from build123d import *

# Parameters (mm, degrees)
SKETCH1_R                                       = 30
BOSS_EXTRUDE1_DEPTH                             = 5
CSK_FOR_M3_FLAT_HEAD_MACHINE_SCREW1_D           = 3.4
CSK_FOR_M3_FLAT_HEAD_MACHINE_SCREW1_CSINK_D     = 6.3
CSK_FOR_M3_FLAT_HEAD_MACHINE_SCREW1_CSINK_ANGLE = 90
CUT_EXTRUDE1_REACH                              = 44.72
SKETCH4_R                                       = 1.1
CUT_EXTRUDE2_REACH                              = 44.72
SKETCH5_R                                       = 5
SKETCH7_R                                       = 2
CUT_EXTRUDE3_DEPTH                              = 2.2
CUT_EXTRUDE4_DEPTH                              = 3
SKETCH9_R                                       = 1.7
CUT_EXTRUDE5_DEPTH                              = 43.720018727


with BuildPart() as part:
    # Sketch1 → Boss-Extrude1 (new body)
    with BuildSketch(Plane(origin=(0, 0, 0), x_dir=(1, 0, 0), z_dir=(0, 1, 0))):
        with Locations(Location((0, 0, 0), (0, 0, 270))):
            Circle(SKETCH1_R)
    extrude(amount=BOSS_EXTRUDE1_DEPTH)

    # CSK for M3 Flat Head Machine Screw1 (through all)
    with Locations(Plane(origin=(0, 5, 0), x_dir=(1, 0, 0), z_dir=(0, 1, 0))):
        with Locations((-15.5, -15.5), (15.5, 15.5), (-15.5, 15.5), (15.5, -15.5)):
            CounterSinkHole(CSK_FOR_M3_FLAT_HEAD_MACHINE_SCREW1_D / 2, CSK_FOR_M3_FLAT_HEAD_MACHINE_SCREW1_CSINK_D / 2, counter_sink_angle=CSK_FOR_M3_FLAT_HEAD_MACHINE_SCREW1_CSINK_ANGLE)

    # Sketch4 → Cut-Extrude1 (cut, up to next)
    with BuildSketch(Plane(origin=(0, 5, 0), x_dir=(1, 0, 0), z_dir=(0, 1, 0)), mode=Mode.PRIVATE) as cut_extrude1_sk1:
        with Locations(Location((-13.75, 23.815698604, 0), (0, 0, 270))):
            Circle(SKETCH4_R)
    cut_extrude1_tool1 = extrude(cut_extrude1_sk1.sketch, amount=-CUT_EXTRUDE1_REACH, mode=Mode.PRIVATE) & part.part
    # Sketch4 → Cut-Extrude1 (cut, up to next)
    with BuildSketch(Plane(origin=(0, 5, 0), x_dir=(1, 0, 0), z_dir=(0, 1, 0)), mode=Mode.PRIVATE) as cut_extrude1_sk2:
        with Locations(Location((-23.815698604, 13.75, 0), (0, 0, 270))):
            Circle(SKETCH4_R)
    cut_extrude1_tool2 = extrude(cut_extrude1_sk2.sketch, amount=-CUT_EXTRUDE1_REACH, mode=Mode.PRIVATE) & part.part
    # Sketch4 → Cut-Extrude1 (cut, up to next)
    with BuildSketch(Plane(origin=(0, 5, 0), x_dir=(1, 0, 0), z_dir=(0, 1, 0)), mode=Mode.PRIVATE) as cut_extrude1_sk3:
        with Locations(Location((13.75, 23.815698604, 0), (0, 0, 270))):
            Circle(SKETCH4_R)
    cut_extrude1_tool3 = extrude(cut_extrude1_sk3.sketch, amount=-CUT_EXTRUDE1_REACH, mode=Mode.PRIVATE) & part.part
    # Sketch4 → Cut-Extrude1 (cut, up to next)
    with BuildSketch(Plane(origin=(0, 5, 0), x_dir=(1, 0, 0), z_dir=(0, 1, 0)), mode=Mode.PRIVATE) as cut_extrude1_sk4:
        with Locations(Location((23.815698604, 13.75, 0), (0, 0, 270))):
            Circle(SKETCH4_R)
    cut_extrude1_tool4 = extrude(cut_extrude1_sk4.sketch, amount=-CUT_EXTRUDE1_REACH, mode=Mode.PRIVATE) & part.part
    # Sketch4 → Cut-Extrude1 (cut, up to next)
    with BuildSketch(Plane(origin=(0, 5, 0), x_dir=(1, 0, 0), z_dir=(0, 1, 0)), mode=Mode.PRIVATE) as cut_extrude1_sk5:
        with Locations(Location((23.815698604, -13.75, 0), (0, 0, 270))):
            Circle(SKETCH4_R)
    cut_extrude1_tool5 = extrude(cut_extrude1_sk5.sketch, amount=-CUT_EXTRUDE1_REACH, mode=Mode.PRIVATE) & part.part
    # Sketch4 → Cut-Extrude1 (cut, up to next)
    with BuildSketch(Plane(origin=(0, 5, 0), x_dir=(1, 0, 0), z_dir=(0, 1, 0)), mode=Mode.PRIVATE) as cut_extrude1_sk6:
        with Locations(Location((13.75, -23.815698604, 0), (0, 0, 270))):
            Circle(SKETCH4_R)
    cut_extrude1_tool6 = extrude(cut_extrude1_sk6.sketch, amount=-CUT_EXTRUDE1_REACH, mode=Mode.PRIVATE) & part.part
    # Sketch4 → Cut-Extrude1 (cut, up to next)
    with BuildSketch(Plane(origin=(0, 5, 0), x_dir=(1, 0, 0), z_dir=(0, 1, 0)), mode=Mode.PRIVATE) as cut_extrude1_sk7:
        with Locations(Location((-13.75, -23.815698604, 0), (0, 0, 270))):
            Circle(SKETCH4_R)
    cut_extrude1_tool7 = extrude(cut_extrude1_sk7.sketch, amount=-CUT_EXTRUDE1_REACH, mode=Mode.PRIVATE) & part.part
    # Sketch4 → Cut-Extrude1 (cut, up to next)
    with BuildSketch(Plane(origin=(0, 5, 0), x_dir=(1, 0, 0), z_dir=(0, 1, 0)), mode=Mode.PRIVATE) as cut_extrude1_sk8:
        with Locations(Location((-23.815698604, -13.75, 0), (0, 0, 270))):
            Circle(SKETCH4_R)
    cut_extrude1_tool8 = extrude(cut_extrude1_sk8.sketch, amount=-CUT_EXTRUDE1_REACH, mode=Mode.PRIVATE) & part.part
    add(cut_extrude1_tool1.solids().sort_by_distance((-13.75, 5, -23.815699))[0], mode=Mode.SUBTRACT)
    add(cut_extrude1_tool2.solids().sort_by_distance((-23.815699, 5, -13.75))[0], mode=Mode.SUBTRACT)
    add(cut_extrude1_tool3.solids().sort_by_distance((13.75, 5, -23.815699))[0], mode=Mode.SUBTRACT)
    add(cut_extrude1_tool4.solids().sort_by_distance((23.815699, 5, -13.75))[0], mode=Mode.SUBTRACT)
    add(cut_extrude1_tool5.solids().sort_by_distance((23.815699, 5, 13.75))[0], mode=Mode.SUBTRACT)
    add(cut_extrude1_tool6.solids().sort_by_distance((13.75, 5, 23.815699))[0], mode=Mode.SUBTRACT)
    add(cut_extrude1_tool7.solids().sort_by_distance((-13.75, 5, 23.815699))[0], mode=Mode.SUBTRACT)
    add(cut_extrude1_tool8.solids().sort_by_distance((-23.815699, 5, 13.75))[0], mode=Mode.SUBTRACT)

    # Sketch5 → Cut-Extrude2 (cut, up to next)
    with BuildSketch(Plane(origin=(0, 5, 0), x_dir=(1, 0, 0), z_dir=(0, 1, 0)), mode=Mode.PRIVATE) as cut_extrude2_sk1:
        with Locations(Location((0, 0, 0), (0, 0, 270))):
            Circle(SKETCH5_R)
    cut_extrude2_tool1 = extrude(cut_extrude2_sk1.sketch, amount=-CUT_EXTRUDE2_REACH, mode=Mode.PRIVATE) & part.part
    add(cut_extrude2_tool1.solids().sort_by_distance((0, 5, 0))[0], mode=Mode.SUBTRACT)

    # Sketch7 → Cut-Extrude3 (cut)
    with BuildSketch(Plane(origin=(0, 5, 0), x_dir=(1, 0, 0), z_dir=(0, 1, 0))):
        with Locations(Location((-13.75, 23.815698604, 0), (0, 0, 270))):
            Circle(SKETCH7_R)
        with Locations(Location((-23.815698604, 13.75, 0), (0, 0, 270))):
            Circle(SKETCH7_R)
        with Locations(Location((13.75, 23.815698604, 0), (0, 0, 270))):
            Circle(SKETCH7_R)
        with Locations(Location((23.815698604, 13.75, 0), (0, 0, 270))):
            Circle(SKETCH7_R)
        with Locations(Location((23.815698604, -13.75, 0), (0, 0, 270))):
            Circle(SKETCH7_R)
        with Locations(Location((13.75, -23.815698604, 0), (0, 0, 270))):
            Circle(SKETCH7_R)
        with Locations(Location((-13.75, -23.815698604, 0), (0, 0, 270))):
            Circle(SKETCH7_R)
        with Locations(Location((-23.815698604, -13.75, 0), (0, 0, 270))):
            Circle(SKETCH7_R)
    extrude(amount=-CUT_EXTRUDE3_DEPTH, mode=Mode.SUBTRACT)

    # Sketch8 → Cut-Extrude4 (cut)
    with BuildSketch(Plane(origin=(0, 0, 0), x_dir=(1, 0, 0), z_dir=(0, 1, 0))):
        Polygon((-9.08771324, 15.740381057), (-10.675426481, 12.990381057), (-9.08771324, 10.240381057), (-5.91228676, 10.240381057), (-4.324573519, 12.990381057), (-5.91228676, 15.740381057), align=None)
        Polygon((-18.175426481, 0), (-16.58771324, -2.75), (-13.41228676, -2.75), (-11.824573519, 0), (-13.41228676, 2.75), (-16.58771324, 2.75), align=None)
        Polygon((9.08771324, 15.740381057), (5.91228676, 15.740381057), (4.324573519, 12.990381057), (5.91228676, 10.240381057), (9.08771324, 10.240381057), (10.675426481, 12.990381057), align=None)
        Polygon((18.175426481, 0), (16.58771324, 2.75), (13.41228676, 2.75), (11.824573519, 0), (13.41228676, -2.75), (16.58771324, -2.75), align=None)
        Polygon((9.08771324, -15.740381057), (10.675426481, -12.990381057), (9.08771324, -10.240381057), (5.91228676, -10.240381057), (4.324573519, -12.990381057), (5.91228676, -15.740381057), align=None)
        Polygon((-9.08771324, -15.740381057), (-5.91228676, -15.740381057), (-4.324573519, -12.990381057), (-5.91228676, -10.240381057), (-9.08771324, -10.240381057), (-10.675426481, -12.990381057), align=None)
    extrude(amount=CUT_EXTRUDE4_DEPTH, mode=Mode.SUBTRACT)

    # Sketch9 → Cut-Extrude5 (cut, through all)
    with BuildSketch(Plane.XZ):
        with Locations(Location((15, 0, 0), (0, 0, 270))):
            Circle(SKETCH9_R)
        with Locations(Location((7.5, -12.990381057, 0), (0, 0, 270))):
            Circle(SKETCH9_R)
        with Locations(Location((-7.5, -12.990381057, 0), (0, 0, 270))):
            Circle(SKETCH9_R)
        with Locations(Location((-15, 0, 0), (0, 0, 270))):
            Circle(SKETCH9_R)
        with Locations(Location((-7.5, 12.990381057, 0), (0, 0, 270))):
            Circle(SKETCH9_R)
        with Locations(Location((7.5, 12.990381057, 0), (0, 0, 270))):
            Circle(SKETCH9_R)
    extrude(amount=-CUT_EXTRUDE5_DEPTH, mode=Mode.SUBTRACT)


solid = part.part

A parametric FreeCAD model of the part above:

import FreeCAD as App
import Part
import Sketcher
Q = App.Units.Quantity

doc = App.newDocument("Part")
body = doc.addObject("PartDesign::Body", "Body")

sketch1 = doc.addObject("Sketcher::SketchObject", "Sketch")
body.addObject(sketch1)
sketch1.AttachmentSupport = (doc.XZ_Plane, [""])
sketch1.MapMode = "FlatFace"
sketch1.addGeometry(Part.Circle(App.Vector(0, 0, 0), App.Vector(0, 0, 1), 30), False)
sketch1.addConstraint([
    Sketcher.Constraint("Coincident", 0, 3, -1, 1),
    Sketcher.Constraint("Diameter", 0, Q("60 mm")),
])
pad1 = doc.addObject("PartDesign::Pad", "Pad")
body.addObject(pad1)
pad1.Profile = sketch1
pad1.Length = 5
pad1.Reversed = True

sketch2 = doc.addObject("Sketcher::SketchObject", "Sketch001")
body.addObject(sketch2)
sketch2.AttachmentSupport = (doc.XZ_Plane, [""])
sketch2.MapMode = "FlatFace"
sketch2.AttachmentOffset = App.Placement(App.Vector(0, 0, -5), App.Rotation())
sketch2.addGeometry([
    Part.Circle(App.Vector(-15.5, 15.5, 0), App.Vector(0, 0, 1), 1.7),
    Part.Circle(App.Vector(15.5, -15.5, 0), App.Vector(0, 0, 1), 1.7),
    Part.Circle(App.Vector(-15.5, -15.5, 0), App.Vector(0, 0, 1), 1.7),
    Part.Circle(App.Vector(15.5, 15.5, 0), App.Vector(0, 0, 1), 1.7),
], False)
sketch2.addConstraint([
    Sketcher.Constraint("Equal", 0, 1),
    Sketcher.Constraint("Equal", 1, 2),
    Sketcher.Constraint("Equal", 2, 3),
    Sketcher.Constraint("Symmetric", 0, 3, 1, 3, -1, 1),
    Sketcher.Constraint("Symmetric", 2, 3, 3, 3, -1, 1),
    Sketcher.Constraint("Symmetric", 1, 3, 2, 3, -2),
    Sketcher.Constraint("Diameter", 0, Q("3.4 mm")),
    Sketcher.Constraint("DistanceX", 0, 3, 1, 3, Q("31 mm")),
    Sketcher.Constraint("DistanceY", 1, 3, 0, 3, Q("31 mm")),
])
doc.recompute()
hole = doc.addObject("PartDesign::Hole", "Hole")
body.addObject(hole)
hole.Profile = sketch2
hole.ThreadType = "None"
hole.Diameter = 3.4
hole.DepthType = "ThroughAll"
hole.HoleCutType = "Countersink"
hole.HoleCutDiameter = 6.3
hole.HoleCutCountersinkAngle = 90
hole.Reversed = True

sketch3 = doc.addObject("Sketcher::SketchObject", "Sketch002")
body.addObject(sketch3)
sketch3.AttachmentSupport = (doc.XZ_Plane, [""])
sketch3.MapMode = "FlatFace"
sketch3.AttachmentOffset = App.Placement(App.Vector(0, 0, -5), App.Rotation())
sketch3.addGeometry(Part.Circle(App.Vector(-13.75, -23.815699, 0), App.Vector(0, 0, 1), 1.1), False)
sketch3.addConstraint([
    Sketcher.Constraint("Diameter", 0, Q("2.2 mm")),
    Sketcher.Constraint("DistanceX", 0, 3, -1, 1, Q("13.75 mm")),
    Sketcher.Constraint("DistanceY", 0, 3, -1, 1, Q("23.815699 mm")),
])
pocket1 = doc.addObject("PartDesign::Pocket", "Pocket")
body.addObject(pocket1)
pocket1.Profile = sketch3
pocket1.Type = "UpToFirst"
pocket1.Reversed = True

sketch4 = doc.addObject("Sketcher::SketchObject", "Sketch003")
body.addObject(sketch4)
sketch4.AttachmentSupport = (doc.XZ_Plane, [""])
sketch4.MapMode = "FlatFace"
sketch4.AttachmentOffset = App.Placement(App.Vector(0, 0, -5), App.Rotation())
sketch4.addGeometry(Part.Circle(App.Vector(-23.815699, -13.75, 0), App.Vector(0, 0, 1), 1.1), False)
sketch4.addConstraint([
    Sketcher.Constraint("Diameter", 0, Q("2.2 mm")),
    Sketcher.Constraint("DistanceY", 0, 3, -1, 1, Q("13.75 mm")),
    Sketcher.Constraint("DistanceX", 0, 3, -1, 1, Q("23.815699 mm")),
])
pocket2 = doc.addObject("PartDesign::Pocket", "Pocket001")
body.addObject(pocket2)
pocket2.Profile = sketch4
pocket2.Type = "UpToFirst"
pocket2.Reversed = True

sketch5 = doc.addObject("Sketcher::SketchObject", "Sketch004")
body.addObject(sketch5)
sketch5.AttachmentSupport = (doc.XZ_Plane, [""])
sketch5.MapMode = "FlatFace"
sketch5.AttachmentOffset = App.Placement(App.Vector(0, 0, -5), App.Rotation())
sketch5.addGeometry(Part.Circle(App.Vector(13.75, -23.815699, 0), App.Vector(0, 0, 1), 1.1), False)
sketch5.addConstraint([
    Sketcher.Constraint("Diameter", 0, Q("2.2 mm")),
    Sketcher.Constraint("DistanceX", -1, 1, 0, 3, Q("13.75 mm")),
    Sketcher.Constraint("DistanceY", 0, 3, -1, 1, Q("23.815699 mm")),
])
pocket3 = doc.addObject("PartDesign::Pocket", "Pocket002")
body.addObject(pocket3)
pocket3.Profile = sketch5
pocket3.Type = "UpToFirst"
pocket3.Reversed = True

sketch6 = doc.addObject("Sketcher::SketchObject", "Sketch005")
body.addObject(sketch6)
sketch6.AttachmentSupport = (doc.XZ_Plane, [""])
sketch6.MapMode = "FlatFace"
sketch6.AttachmentOffset = App.Placement(App.Vector(0, 0, -5), App.Rotation())
sketch6.addGeometry(Part.Circle(App.Vector(23.815699, -13.75, 0), App.Vector(0, 0, 1), 1.1), False)
sketch6.addConstraint([
    Sketcher.Constraint("Diameter", 0, Q("2.2 mm")),
    Sketcher.Constraint("DistanceY", 0, 3, -1, 1, Q("13.75 mm")),
    Sketcher.Constraint("DistanceX", -1, 1, 0, 3, Q("23.815699 mm")),
])
pocket4 = doc.addObject("PartDesign::Pocket", "Pocket003")
body.addObject(pocket4)
pocket4.Profile = sketch6
pocket4.Type = "UpToFirst"
pocket4.Reversed = True

sketch7 = doc.addObject("Sketcher::SketchObject", "Sketch006")
body.addObject(sketch7)
sketch7.AttachmentSupport = (doc.XZ_Plane, [""])
sketch7.MapMode = "FlatFace"
sketch7.AttachmentOffset = App.Placement(App.Vector(0, 0, -5), App.Rotation())
sketch7.addGeometry(Part.Circle(App.Vector(23.815699, 13.75, 0), App.Vector(0, 0, 1), 1.1), False)
sketch7.addConstraint([
    Sketcher.Constraint("Diameter", 0, Q("2.2 mm")),
    Sketcher.Constraint("DistanceY", -1, 1, 0, 3, Q("13.75 mm")),
    Sketcher.Constraint("DistanceX", -1, 1, 0, 3, Q("23.815699 mm")),
])
pocket5 = doc.addObject("PartDesign::Pocket", "Pocket004")
body.addObject(pocket5)
pocket5.Profile = sketch7
pocket5.Type = "UpToFirst"
pocket5.Reversed = True

sketch8 = doc.addObject("Sketcher::SketchObject", "Sketch007")
body.addObject(sketch8)
sketch8.AttachmentSupport = (doc.XZ_Plane, [""])
sketch8.MapMode = "FlatFace"
sketch8.AttachmentOffset = App.Placement(App.Vector(0, 0, -5), App.Rotation())
sketch8.addGeometry(Part.Circle(App.Vector(13.75, 23.815699, 0), App.Vector(0, 0, 1), 1.1), False)
sketch8.addConstraint([
    Sketcher.Constraint("Diameter", 0, Q("2.2 mm")),
    Sketcher.Constraint("DistanceX", -1, 1, 0, 3, Q("13.75 mm")),
    Sketcher.Constraint("DistanceY", -1, 1, 0, 3, Q("23.815699 mm")),
])
pocket6 = doc.addObject("PartDesign::Pocket", "Pocket005")
body.addObject(pocket6)
pocket6.Profile = sketch8
pocket6.Type = "UpToFirst"
pocket6.Reversed = True

sketch9 = doc.addObject("Sketcher::SketchObject", "Sketch008")
body.addObject(sketch9)
sketch9.AttachmentSupport = (doc.XZ_Plane, [""])
sketch9.MapMode = "FlatFace"
sketch9.AttachmentOffset = App.Placement(App.Vector(0, 0, -5), App.Rotation())
sketch9.addGeometry(Part.Circle(App.Vector(-13.75, 23.815699, 0), App.Vector(0, 0, 1), 1.1), False)
sketch9.addConstraint([
    Sketcher.Constraint("Diameter", 0, Q("2.2 mm")),
    Sketcher.Constraint("DistanceX", 0, 3, -1, 1, Q("13.75 mm")),
    Sketcher.Constraint("DistanceY", -1, 1, 0, 3, Q("23.815699 mm")),
])
pocket7 = doc.addObject("PartDesign::Pocket", "Pocket006")
body.addObject(pocket7)
pocket7.Profile = sketch9
pocket7.Type = "UpToFirst"
pocket7.Reversed = True

sketch10 = doc.addObject("Sketcher::SketchObject", "Sketch009")
body.addObject(sketch10)
sketch10.AttachmentSupport = (doc.XZ_Plane, [""])
sketch10.MapMode = "FlatFace"
sketch10.AttachmentOffset = App.Placement(App.Vector(0, 0, -5), App.Rotation())
sketch10.addGeometry(Part.Circle(App.Vector(-23.815699, 13.75, 0), App.Vector(0, 0, 1), 1.1), False)
sketch10.addConstraint([
    Sketcher.Constraint("Diameter", 0, Q("2.2 mm")),
    Sketcher.Constraint("DistanceY", -1, 1, 0, 3, Q("13.75 mm")),
    Sketcher.Constraint("DistanceX", 0, 3, -1, 1, Q("23.815699 mm")),
])
pocket8 = doc.addObject("PartDesign::Pocket", "Pocket007")
body.addObject(pocket8)
pocket8.Profile = sketch10
pocket8.Type = "UpToFirst"
pocket8.Reversed = True

sketch11 = doc.addObject("Sketcher::SketchObject", "Sketch010")
body.addObject(sketch11)
sketch11.AttachmentSupport = (doc.XZ_Plane, [""])
sketch11.MapMode = "FlatFace"
sketch11.AttachmentOffset = App.Placement(App.Vector(0, 0, -5), App.Rotation())
sketch11.addGeometry(Part.Circle(App.Vector(0, 0, 0), App.Vector(0, 0, 1), 5), False)
sketch11.addConstraint([
    Sketcher.Constraint("Coincident", 0, 3, -1, 1),
    Sketcher.Constraint("Diameter", 0, Q("10 mm")),
])
pocket9 = doc.addObject("PartDesign::Pocket", "Pocket008")
body.addObject(pocket9)
pocket9.Profile = sketch11
pocket9.Type = "UpToFirst"
pocket9.Reversed = True

sketch12 = doc.addObject("Sketcher::SketchObject", "Sketch011")
body.addObject(sketch12)
sketch12.AttachmentSupport = (doc.XZ_Plane, [""])
sketch12.MapMode = "FlatFace"
sketch12.AttachmentOffset = App.Placement(App.Vector(0, 0, -5), App.Rotation())
sketch12.addGeometry([
    Part.Circle(App.Vector(-13.75, -23.815699, 0), App.Vector(0, 0, 1), 2),
    Part.Circle(App.Vector(-23.815699, -13.75, 0), App.Vector(0, 0, 1), 2),
    Part.Circle(App.Vector(13.75, -23.815699, 0), App.Vector(0, 0, 1), 2),
    Part.Circle(App.Vector(23.815699, -13.75, 0), App.Vector(0, 0, 1), 2),
    Part.Circle(App.Vector(23.815699, 13.75, 0), App.Vector(0, 0, 1), 2),
    Part.Circle(App.Vector(13.75, 23.815699, 0), App.Vector(0, 0, 1), 2),
    Part.Circle(App.Vector(-13.75, 23.815699, 0), App.Vector(0, 0, 1), 2),
    Part.Circle(App.Vector(-23.815699, 13.75, 0), App.Vector(0, 0, 1), 2),
], False)
sketch12.addConstraint([
    Sketcher.Constraint("Equal", 0, 1),
    Sketcher.Constraint("Equal", 1, 2),
    Sketcher.Constraint("Equal", 2, 3),
    Sketcher.Constraint("Equal", 3, 4),
    Sketcher.Constraint("Equal", 4, 5),
    Sketcher.Constraint("Equal", 5, 6),
    Sketcher.Constraint("Equal", 6, 7),
    Sketcher.Constraint("Symmetric", 1, 3, 4, 3, -1, 1),
    Sketcher.Constraint("Symmetric", 0, 3, 5, 3, -1, 1),
    Sketcher.Constraint("Symmetric", 2, 3, 6, 3, -1, 1),
    Sketcher.Constraint("Symmetric", 3, 3, 7, 3, -1, 1),
    Sketcher.Constraint("Symmetric", 0, 3, 2, 3, -2),
    Sketcher.Constraint("Symmetric", 1, 3, 3, 3, -2),
    Sketcher.Constraint("Diameter", 0, Q("4 mm")),
    Sketcher.Constraint("DistanceX", 0, 3, 2, 3, Q("27.5 mm")),
    Sketcher.Constraint("DistanceY", 3, 3, 4, 3, Q("27.5 mm")),
    Sketcher.Constraint("DistanceY", 0, 3, -1, 1, Q("23.815699 mm")),
    Sketcher.Constraint("DistanceX", 1, 3, -1, 1, Q("23.815699 mm")),
])
pocket10 = doc.addObject("PartDesign::Pocket", "Pocket009")
body.addObject(pocket10)
pocket10.Profile = sketch12
pocket10.Length = 2.2
pocket10.Reversed = True

sketch13 = doc.addObject("Sketcher::SketchObject", "Sketch012")
body.addObject(sketch13)
sketch13.AttachmentSupport = (doc.XZ_Plane, [""])
sketch13.MapMode = "FlatFace"
sketch13.addGeometry([
    Part.LineSegment(App.Vector(-9.087713, -15.740381, 0), App.Vector(-10.675426, -12.990381, 0)),
    Part.LineSegment(App.Vector(-10.675426, -12.990381, 0), App.Vector(-9.087713, -10.240381, 0)),
    Part.LineSegment(App.Vector(-9.087713, -10.240381, 0), App.Vector(-5.912287, -10.240381, 0)),
    Part.LineSegment(App.Vector(-5.912287, -10.240381, 0), App.Vector(-4.324574, -12.990381, 0)),
    Part.LineSegment(App.Vector(-4.324574, -12.990381, 0), App.Vector(-5.912287, -15.740381, 0)),
    Part.LineSegment(App.Vector(-5.912287, -15.740381, 0), App.Vector(-9.087713, -15.740381, 0)),
    Part.LineSegment(App.Vector(-18.175426, 0, 0), App.Vector(-16.587713, 2.75, 0)),
    Part.LineSegment(App.Vector(-16.587713, 2.75, 0), App.Vector(-13.412287, 2.75, 0)),
    Part.LineSegment(App.Vector(-13.412287, 2.75, 0), App.Vector(-11.824574, 0, 0)),
    Part.LineSegment(App.Vector(-11.824574, 0, 0), App.Vector(-13.412287, -2.75, 0)),
    Part.LineSegment(App.Vector(-13.412287, -2.75, 0), App.Vector(-16.587713, -2.75, 0)),
    Part.LineSegment(App.Vector(-16.587713, -2.75, 0), App.Vector(-18.175426, 0, 0)),
    Part.LineSegment(App.Vector(9.087713, -15.740381, 0), App.Vector(5.912287, -15.740381, 0)),
    Part.LineSegment(App.Vector(5.912287, -15.740381, 0), App.Vector(4.324574, -12.990381, 0)),
    Part.LineSegment(App.Vector(4.324574, -12.990381, 0), App.Vector(5.912287, -10.240381, 0)),
    Part.LineSegment(App.Vector(5.912287, -10.240381, 0), App.Vector(9.087713, -10.240381, 0)),
    Part.LineSegment(App.Vector(9.087713, -10.240381, 0), App.Vector(10.675426, -12.990381, 0)),
    Part.LineSegment(App.Vector(10.675426, -12.990381, 0), App.Vector(9.087713, -15.740381, 0)),
    Part.LineSegment(App.Vector(18.175426, 0, 0), App.Vector(16.587713, -2.75, 0)),
    Part.LineSegment(App.Vector(16.587713, -2.75, 0), App.Vector(13.412287, -2.75, 0)),
    Part.LineSegment(App.Vector(13.412287, -2.75, 0), App.Vector(11.824574, 0, 0)),
    Part.LineSegment(App.Vector(11.824574, 0, 0), App.Vector(13.412287, 2.75, 0)),
    Part.LineSegment(App.Vector(13.412287, 2.75, 0), App.Vector(16.587713, 2.75, 0)),
    Part.LineSegment(App.Vector(16.587713, 2.75, 0), App.Vector(18.175426, 0, 0)),
    Part.LineSegment(App.Vector(9.087713, 15.740381, 0), App.Vector(10.675426, 12.990381, 0)),
    Part.LineSegment(App.Vector(10.675426, 12.990381, 0), App.Vector(9.087713, 10.240381, 0)),
    Part.LineSegment(App.Vector(9.087713, 10.240381, 0), App.Vector(5.912287, 10.240381, 0)),
    Part.LineSegment(App.Vector(5.912287, 10.240381, 0), App.Vector(4.324574, 12.990381, 0)),
    Part.LineSegment(App.Vector(4.324574, 12.990381, 0), App.Vector(5.912287, 15.740381, 0)),
    Part.LineSegment(App.Vector(5.912287, 15.740381, 0), App.Vector(9.087713, 15.740381, 0)),
    Part.LineSegment(App.Vector(-9.087713, 15.740381, 0), App.Vector(-5.912287, 15.740381, 0)),
    Part.LineSegment(App.Vector(-5.912287, 15.740381, 0), App.Vector(-4.324574, 12.990381, 0)),
    Part.LineSegment(App.Vector(-4.324574, 12.990381, 0), App.Vector(-5.912287, 10.240381, 0)),
    Part.LineSegment(App.Vector(-5.912287, 10.240381, 0), App.Vector(-9.087713, 10.240381, 0)),
    Part.LineSegment(App.Vector(-9.087713, 10.240381, 0), App.Vector(-10.675426, 12.990381, 0)),
    Part.LineSegment(App.Vector(-10.675426, 12.990381, 0), App.Vector(-9.087713, 15.740381, 0)),
], False)
sketch13.addConstraint([
    Sketcher.Constraint("Coincident", 0, 2, 1, 1),
    Sketcher.Constraint("Coincident", 1, 2, 2, 1),
    Sketcher.Constraint("Coincident", 2, 2, 3, 1),
    Sketcher.Constraint("Coincident", 3, 2, 4, 1),
    Sketcher.Constraint("Coincident", 4, 2, 5, 1),
    Sketcher.Constraint("Coincident", 5, 2, 0, 1),
    Sketcher.Constraint("Coincident", 6, 2, 7, 1),
    Sketcher.Constraint("Coincident", 7, 2, 8, 1),
    Sketcher.Constraint("Coincident", 8, 2, 9, 1),
    Sketcher.Constraint("Coincident", 9, 2, 10, 1),
    Sketcher.Constraint("Coincident", 10, 2, 11, 1),
    Sketcher.Constraint("Coincident", 11, 2, 6, 1),
    Sketcher.Constraint("Coincident", 12, 2, 13, 1),
    Sketcher.Constraint("Coincident", 13, 2, 14, 1),
    Sketcher.Constraint("Coincident", 14, 2, 15, 1),
    Sketcher.Constraint("Coincident", 15, 2, 16, 1),
    Sketcher.Constraint("Coincident", 16, 2, 17, 1),
    Sketcher.Constraint("Coincident", 17, 2, 12, 1),
    Sketcher.Constraint("Coincident", 18, 2, 19, 1),
    Sketcher.Constraint("Coincident", 19, 2, 20, 1),
    Sketcher.Constraint("Coincident", 20, 2, 21, 1),
    Sketcher.Constraint("Coincident", 21, 2, 22, 1),
    Sketcher.Constraint("Coincident", 22, 2, 23, 1),
    Sketcher.Constraint("Coincident", 23, 2, 18, 1),
    Sketcher.Constraint("Coincident", 24, 2, 25, 1),
    Sketcher.Constraint("Coincident", 25, 2, 26, 1),
    Sketcher.Constraint("Coincident", 26, 2, 27, 1),
    Sketcher.Constraint("Coincident", 27, 2, 28, 1),
    Sketcher.Constraint("Coincident", 28, 2, 29, 1),
    Sketcher.Constraint("Coincident", 29, 2, 24, 1),
    Sketcher.Constraint("Coincident", 30, 2, 31, 1),
    Sketcher.Constraint("Coincident", 31, 2, 32, 1),
    Sketcher.Constraint("Coincident", 32, 2, 33, 1),
    Sketcher.Constraint("Coincident", 33, 2, 34, 1),
    Sketcher.Constraint("Coincident", 34, 2, 35, 1),
    Sketcher.Constraint("Coincident", 35, 2, 30, 1),
    Sketcher.Constraint("Horizontal", 2),
    Sketcher.Constraint("Horizontal", 5),
    Sketcher.Constraint("Horizontal", 7),
    Sketcher.Constraint("Horizontal", 10),
    Sketcher.Constraint("Horizontal", 12),
    Sketcher.Constraint("Horizontal", 15),
    Sketcher.Constraint("Horizontal", 19),
    Sketcher.Constraint("Horizontal", 22),
    Sketcher.Constraint("Horizontal", 26),
    Sketcher.Constraint("Horizontal", 29),
    Sketcher.Constraint("Horizontal", 30),
    Sketcher.Constraint("Horizontal", 33),
    Sketcher.Constraint("Symmetric", 6, 2, 18, 2, -1, 1),
    Sketcher.Constraint("Symmetric", 8, 2, 20, 2, -1, 1),
    Sketcher.Constraint("Symmetric", 9, 2, 21, 2, -1, 1),
    Sketcher.Constraint("Symmetric", 11, 2, 23, 2, -1, 1),
    Sketcher.Constraint("Symmetric", 0, 2, 24, 2, -1, 1),
    Sketcher.Constraint("Symmetric", 1, 2, 25, 2, -1, 1),
    Sketcher.Constraint("Symmetric", 3, 2, 27, 2, -1, 1),
    Sketcher.Constraint("Symmetric", 4, 2, 28, 2, -1, 1),
    Sketcher.Constraint("Symmetric", 12, 2, 30, 2, -1, 1),
    Sketcher.Constraint("Symmetric", 13, 2, 31, 2, -1, 1),
    Sketcher.Constraint("Symmetric", 14, 2, 32, 2, -1, 1),
    Sketcher.Constraint("Symmetric", 16, 2, 34, 2, -1, 1),
    Sketcher.Constraint("Symmetric", 4, 2, 12, 2, -2),
    Sketcher.Constraint("Symmetric", 3, 2, 13, 2, -2),
    Sketcher.Constraint("Symmetric", 2, 2, 14, 2, -2),
    Sketcher.Constraint("Symmetric", 0, 2, 16, 2, -2),
    Sketcher.Constraint("Symmetric", 10, 2, 18, 2, -2),
    Sketcher.Constraint("PointOnObject", 8, 2, -1),
    Sketcher.Constraint("PointOnObject", 11, 2, -1),
    Sketcher.Constraint("Parallel", 0, 3),
    Sketcher.Constraint("Parallel", 1, 4),
    Sketcher.Constraint("Parallel", 4, 6),
    Sketcher.Constraint("Parallel", 3, 8),
    Sketcher.Constraint("Parallel", 6, 9),
    Sketcher.Constraint("Parallel", 8, 11),
    Sketcher.Constraint("Parallel", 13, 16),
    Sketcher.Constraint("Parallel", 14, 17),
    Sketcher.Constraint("Parallel", 16, 20),
    Sketcher.Constraint("Parallel", 20, 23),
    Sketcher.Constraint("Parallel", 23, 24),
    Sketcher.Constraint("Parallel", 24, 27),
    Sketcher.Constraint("Parallel", 31, 34),
    Sketcher.Constraint("Parallel", 32, 35),
    Sketcher.Constraint("Horizontal", 0, 2, 3, 2),
    Sketcher.Constraint("Vertical", 2, 2, 4, 2),
    Sketcher.Constraint("Equal", 5, 7),
    Sketcher.Constraint("Equal", 4, 6),
    Sketcher.Constraint("Angle", 0, Q("120 deg")),
    Sketcher.Constraint("DistanceX", 5, 2, 12, 2, Q("15 mm")),
    Sketcher.Constraint("DistanceY", 4, 2, 2, 2, Q("5.5 mm")),
    Sketcher.Constraint("DistanceX", 6, 2, 1, 2, Q("7.5 mm")),
    Sketcher.Constraint("DistanceX", 2, 1, 2, 2, Q("3.175426 mm")),
    Sketcher.Constraint("DistanceY", 0, 2, -1, 1, Q("12.990381 mm")),
])
pocket11 = doc.addObject("PartDesign::Pocket", "Pocket010")
body.addObject(pocket11)
pocket11.Profile = sketch13
pocket11.Length = 3

sketch14 = doc.addObject("Sketcher::SketchObject", "Sketch013")
body.addObject(sketch14)
sketch14.AttachmentSupport = (doc.XZ_Plane, [""])
sketch14.MapMode = "FlatFace"
sketch14.addGeometry([
    Part.Circle(App.Vector(15, 0, 0), App.Vector(0, 0, 1), 1.7),
    Part.Circle(App.Vector(7.5, -12.990381, 0), App.Vector(0, 0, 1), 1.7),
    Part.Circle(App.Vector(-7.5, -12.990381, 0), App.Vector(0, 0, 1), 1.7),
    Part.Circle(App.Vector(-15, 0, 0), App.Vector(0, 0, 1), 1.7),
    Part.Circle(App.Vector(-7.5, 12.990381, 0), App.Vector(0, 0, 1), 1.7),
    Part.Circle(App.Vector(7.5, 12.990381, 0), App.Vector(0, 0, 1), 1.7),
], False)
sketch14.addConstraint([
    Sketcher.Constraint("Equal", 0, 1),
    Sketcher.Constraint("Equal", 1, 2),
    Sketcher.Constraint("Equal", 2, 3),
    Sketcher.Constraint("Equal", 3, 4),
    Sketcher.Constraint("Equal", 4, 5),
    Sketcher.Constraint("Symmetric", 0, 3, 3, 3, -1, 1),
    Sketcher.Constraint("Symmetric", 1, 3, 4, 3, -1, 1),
    Sketcher.Constraint("Symmetric", 2, 3, 5, 3, -1, 1),
    Sketcher.Constraint("Symmetric", 1, 3, 2, 3, -2),
    Sketcher.Constraint("PointOnObject", 0, 3, -1),
    Sketcher.Constraint("Diameter", 0, Q("3.4 mm")),
    Sketcher.Constraint("DistanceX", -1, 1, 0, 3, Q("15 mm")),
    Sketcher.Constraint("DistanceX", 2, 3, 1, 3, Q("15 mm")),
    Sketcher.Constraint("DistanceY", 1, 3, -1, 1, Q("12.990381 mm")),
])
pocket12 = doc.addObject("PartDesign::Pocket", "Pocket011")
body.addObject(pocket12)
pocket12.Profile = sketch14
pocket12.Type = "ThroughAll"

doc.recompute()
